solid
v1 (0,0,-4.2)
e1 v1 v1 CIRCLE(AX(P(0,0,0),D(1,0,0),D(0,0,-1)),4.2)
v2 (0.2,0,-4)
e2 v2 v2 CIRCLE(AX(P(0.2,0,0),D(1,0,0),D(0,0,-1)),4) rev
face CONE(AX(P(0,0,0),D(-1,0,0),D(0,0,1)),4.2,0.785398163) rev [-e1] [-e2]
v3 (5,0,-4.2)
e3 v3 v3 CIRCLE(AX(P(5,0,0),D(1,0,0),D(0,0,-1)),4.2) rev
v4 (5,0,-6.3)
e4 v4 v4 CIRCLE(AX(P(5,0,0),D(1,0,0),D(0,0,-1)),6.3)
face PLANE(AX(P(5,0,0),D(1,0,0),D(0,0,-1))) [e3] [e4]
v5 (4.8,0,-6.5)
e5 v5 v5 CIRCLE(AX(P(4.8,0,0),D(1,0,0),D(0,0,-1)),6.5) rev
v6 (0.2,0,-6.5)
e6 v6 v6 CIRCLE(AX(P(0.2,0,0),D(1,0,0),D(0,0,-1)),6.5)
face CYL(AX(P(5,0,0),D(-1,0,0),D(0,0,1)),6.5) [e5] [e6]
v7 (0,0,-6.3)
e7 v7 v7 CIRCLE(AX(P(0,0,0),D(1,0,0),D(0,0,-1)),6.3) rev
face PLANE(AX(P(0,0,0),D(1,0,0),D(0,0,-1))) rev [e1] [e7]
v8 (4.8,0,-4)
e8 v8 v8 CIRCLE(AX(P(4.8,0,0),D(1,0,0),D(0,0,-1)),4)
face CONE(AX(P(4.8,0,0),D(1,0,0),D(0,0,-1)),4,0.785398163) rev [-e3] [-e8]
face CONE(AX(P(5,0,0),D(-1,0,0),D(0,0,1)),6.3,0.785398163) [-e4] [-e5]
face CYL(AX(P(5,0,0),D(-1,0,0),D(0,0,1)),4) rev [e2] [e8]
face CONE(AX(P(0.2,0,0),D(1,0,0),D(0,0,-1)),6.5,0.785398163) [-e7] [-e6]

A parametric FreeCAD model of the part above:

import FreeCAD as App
import Part
import Sketcher

V = App.Vector


def edges_at(feature, points):
    """Names of the edges that pass closest to the given points."""
    edges = feature.Shape.Edges
    near = lambda p: min(range(len(edges)), key=lambda i: edges[i].distToShape(Part.Vertex(*p))[0])
    return sorted({f"Edge{near(p) + 1}" for p in points})

doc = App.newDocument("Part")
params = doc.addObject("Spreadsheet::Sheet", "Params")
for row, (alias, value) in enumerate([
    ("sketch1_diameter", "13 mm"),
    ("sketch1_diameter2", "8 mm"),
    ("pad1_length", "5 mm"),
    ("chamfer_size", "0.2 mm"),
], start=1):
    params.set(f"A{row}", alias)
    params.set(f"B{row}", "=" + value)
    params.setAlias(f"B{row}", alias)

body = doc.addObject("PartDesign::Body", "Body")

sketch1 = doc.addObject("Sketcher::SketchObject", "Sketch")
body.addObject(sketch1)
sketch1.AttachmentSupport = (doc.YZ_Plane, [""])
sketch1.MapMode = "FlatFace"
sketch1.addGeometry([
    Part.Circle(V(0, 0, 0), V(0, 0, 1), 6.5),
    Part.Circle(V(0, 0, 0), V(0, 0, 1), 4),
], False)
sketch1.addConstraint([
    Sketcher.Constraint("Coincident", 0, 3, -1, 1),
    Sketcher.Constraint("Coincident", 1, 3, -1, 1),
    Sketcher.Constraint("Diameter", 0, 13.0),
    Sketcher.Constraint("Diameter", 1, 8.0),
])
sketch1.setExpression("Constraints[2]", "Params.sketch1_diameter")
sketch1.setExpression("Constraints[3]", "Params.sketch1_diameter2")
pad1 = doc.addObject("PartDesign::Pad", "Pad")
body.addObject(pad1)
pad1.Profile = sketch1
pad1.setExpression("Length", "Params.pad1_length")
doc.recompute()

chamfer = doc.addObject("PartDesign::Chamfer", "Chamfer")
body.addObject(chamfer)
chamfer.Base = (pad1, edges_at(pad1, [
    (0, 0, 6.5),
    (5, 0, 6.5),
    (0, 0, 4),
    (5, 0, 4),
]))
chamfer.setExpression("Size", "Params.chamfer_size")

doc.recompute()
